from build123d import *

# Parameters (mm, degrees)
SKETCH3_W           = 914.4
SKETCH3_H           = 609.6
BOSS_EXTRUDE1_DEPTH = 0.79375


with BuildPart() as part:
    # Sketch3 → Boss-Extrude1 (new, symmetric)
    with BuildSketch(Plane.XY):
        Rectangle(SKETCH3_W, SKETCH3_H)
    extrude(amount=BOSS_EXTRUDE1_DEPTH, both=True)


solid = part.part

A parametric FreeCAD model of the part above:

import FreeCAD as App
import Part
import Sketcher

V = App.Vector
Q = App.Units.Quantity

doc = App.newDocument("Part")
params = doc.addObject("Spreadsheet::Sheet", "Params")
for row, (alias, value) in enumerate([
    ("sketch1_width", "36 in"),
    ("sketch1_height", "24 in"),
    ("pad1_length", "0.0625 in"),
], start=1):
    params.set(f"A{row}", alias)
    params.set(f"B{row}", "=" + value)
    params.setAlias(f"B{row}", alias)

body = doc.addObject("PartDesign::Body", "Body")

# Sketch on XY plane
sketch1 = body.newObject("Sketcher::SketchObject", "Sketch")
sketch1.AttachmentSupport = (doc.getObject("XY_Plane"), [""])
sketch1.MapMode = "FlatFace"
sketch1.addGeometry([
    Part.LineSegment(V(-457, 305, 0), V(-457, -305, 0)),
    Part.LineSegment(V(-457, -305, 0), V(457, -305, 0)),
    Part.LineSegment(V(457, -305, 0), V(457, 305, 0)),
    Part.LineSegment(V(457, 305, 0), V(-457, 305, 0)),
], False)
sketch1.addConstraint([
    Sketcher.Constraint("Coincident", 0, 2, 1, 1),
    Sketcher.Constraint("Coincident", 1, 2, 2, 1),
    Sketcher.Constraint("Coincident", 2, 2, 3, 1),
    Sketcher.Constraint("Coincident", 3, 2, 0, 1),
    Sketcher.Constraint("Vertical", 0),
    Sketcher.Constraint("Horizontal", 1),
    Sketcher.Constraint("Vertical", 2),
    Sketcher.Constraint("Horizontal", 3),
    Sketcher.Constraint("Symmetric", 0, 2, 2, 2, -1, 1),
    Sketcher.Constraint("DistanceX", 1, 1, 1, 2, Q("36 in")),
    Sketcher.Constraint("DistanceY", 0, 2, 0, 1, Q("24 in")),
])
sketch1.setExpression("Constraints[9]", "Params.sketch1_width")
sketch1.setExpression("Constraints[10]", "Params.sketch1_height")
pad1 = body.newObject("PartDesign::Pad", "Pad")
pad1.Profile = sketch1
pad1.setExpression("Length", "Params.pad1_length")
pad1.Midplane = True

doc.recompute()
